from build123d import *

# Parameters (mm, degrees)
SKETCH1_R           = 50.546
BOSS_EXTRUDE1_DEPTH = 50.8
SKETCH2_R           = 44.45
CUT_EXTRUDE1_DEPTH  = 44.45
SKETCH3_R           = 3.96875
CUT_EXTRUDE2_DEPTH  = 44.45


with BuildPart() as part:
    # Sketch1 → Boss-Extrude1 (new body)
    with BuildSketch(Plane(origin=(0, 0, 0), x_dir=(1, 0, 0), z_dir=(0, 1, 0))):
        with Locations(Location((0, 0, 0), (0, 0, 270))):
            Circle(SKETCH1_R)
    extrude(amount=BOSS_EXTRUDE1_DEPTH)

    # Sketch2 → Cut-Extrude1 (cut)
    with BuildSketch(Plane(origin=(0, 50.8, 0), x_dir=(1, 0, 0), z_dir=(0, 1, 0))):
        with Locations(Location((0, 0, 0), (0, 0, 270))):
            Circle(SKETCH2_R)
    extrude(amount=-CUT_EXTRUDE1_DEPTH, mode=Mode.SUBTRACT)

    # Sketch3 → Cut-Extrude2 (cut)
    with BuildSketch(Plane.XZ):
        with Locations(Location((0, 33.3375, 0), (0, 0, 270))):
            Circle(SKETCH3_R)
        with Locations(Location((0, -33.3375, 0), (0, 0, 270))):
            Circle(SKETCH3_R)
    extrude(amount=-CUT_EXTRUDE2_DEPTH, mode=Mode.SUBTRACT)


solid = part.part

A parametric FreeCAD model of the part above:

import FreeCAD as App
import Part
import Sketcher
Q = App.Units.Quantity

doc = App.newDocument("Part")
body = doc.addObject("PartDesign::Body", "Body")

sketch1 = body.newObject("Sketcher::SketchObject", "Sketch")
sketch1.AttachmentSupport = (doc.getObject("XZ_Plane"), [""])
sketch1.MapMode = "FlatFace"
sketch1.addGeometry(Part.Circle(App.Vector(0, 0, 0), App.Vector(0, 0, 1), 51), False)
sketch1.addConstraint([
    Sketcher.Constraint("Coincident", 0, 3, -1, 1),
    Sketcher.Constraint("Diameter", 0, Q("3.98 in")),
])
pad1 = body.newObject("PartDesign::Pad", "Pad")
pad1.Profile = sketch1
pad1.Length = Q("2 in")
pad1.Reversed = True

sketch2 = body.newObject("Sketcher::SketchObject", "Sketch001")
sketch2.AttachmentSupport = (doc.getObject("XZ_Plane"), [""])
sketch2.MapMode = "FlatFace"
sketch2.AttachmentOffset = App.Placement(App.Vector(0, 0, -2 * 25.4), App.Rotation())
sketch2.addGeometry(Part.Circle(App.Vector(0, 0, 0), App.Vector(0, 0, 1), 44), False)
sketch2.addConstraint([
    Sketcher.Constraint("Coincident", 0, 3, -1, 1),
    Sketcher.Constraint("Diameter", 0, Q("3.5 in")),
])
pocket1 = body.newObject("PartDesign::Pocket", "Pocket")
pocket1.Profile = sketch2
pocket1.Length = Q("1.75 in")
pocket1.Reversed = True

sketch3 = body.newObject("Sketcher::SketchObject", "Sketch002")
sketch3.AttachmentSupport = (doc.getObject("XZ_Plane"), [""])
sketch3.MapMode = "FlatFace"
sketch3.addGeometry([
    Part.Circle(App.Vector(0, 33.3, 0), App.Vector(0, 0, 1), 4),
    Part.Circle(App.Vector(0, -33.3, 0), App.Vector(0, 0, 1), 4),
], False)
sketch3.addConstraint([
    Sketcher.Constraint("Equal", 0, 1),
    Sketcher.Constraint("Symmetric", 0, 3, 1, 3, -1, 1),
    Sketcher.Constraint("PointOnObject", 0, 3, -2),
    Sketcher.Constraint("Diameter", 0, Q("0.3125 in")),
    Sketcher.Constraint("DistanceY", -1, 1, 0, 3, Q("1.3125 in")),
])
pocket2 = body.newObject("PartDesign::Pocket", "Pocket001")
pocket2.Profile = sketch3
pocket2.Length = Q("1.75 in")

doc.recompute()
